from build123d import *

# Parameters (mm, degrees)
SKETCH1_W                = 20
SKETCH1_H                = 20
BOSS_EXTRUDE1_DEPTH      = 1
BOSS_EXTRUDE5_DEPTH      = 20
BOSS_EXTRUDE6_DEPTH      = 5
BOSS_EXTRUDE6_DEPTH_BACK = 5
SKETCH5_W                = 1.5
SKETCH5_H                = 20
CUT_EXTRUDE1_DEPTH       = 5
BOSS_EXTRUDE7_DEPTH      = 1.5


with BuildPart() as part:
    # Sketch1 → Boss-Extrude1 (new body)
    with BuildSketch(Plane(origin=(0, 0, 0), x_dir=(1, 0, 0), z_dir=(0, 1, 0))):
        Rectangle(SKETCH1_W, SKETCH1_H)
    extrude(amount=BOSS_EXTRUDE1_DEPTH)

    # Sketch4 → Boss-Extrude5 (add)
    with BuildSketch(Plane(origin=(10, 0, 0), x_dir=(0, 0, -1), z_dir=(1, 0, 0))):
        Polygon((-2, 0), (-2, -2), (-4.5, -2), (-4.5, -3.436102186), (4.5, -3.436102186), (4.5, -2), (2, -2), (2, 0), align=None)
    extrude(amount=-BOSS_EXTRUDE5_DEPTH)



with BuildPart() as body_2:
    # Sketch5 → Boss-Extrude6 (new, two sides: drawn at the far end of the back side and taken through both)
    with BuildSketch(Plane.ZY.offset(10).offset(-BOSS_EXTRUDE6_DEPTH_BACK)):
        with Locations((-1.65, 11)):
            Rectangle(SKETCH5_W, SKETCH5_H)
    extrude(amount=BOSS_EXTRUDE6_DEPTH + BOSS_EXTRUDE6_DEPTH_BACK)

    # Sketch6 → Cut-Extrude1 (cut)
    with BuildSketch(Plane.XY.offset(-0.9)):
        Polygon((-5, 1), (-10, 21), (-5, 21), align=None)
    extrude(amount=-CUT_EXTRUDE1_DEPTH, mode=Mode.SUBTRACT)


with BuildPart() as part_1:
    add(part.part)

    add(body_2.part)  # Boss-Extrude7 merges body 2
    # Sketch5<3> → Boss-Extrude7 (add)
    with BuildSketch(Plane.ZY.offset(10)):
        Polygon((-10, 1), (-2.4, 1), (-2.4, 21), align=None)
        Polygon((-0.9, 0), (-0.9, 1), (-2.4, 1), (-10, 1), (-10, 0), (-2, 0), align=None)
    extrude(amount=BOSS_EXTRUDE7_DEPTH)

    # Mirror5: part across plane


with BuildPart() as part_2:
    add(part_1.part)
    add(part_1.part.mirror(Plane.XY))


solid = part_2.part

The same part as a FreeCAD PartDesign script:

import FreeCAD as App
import Part
import Sketcher

V = App.Vector
Q = App.Units.Quantity


def add_polygon(sketch, points):
    """Adds a closed chain of lines whose ends are joined by coincident constraints."""
    first, n = sketch.GeometryCount, len(points)
    for a, b in zip(points, points[1:] + points[:1]):
        sketch.addGeometry(Part.LineSegment(App.Vector(*a, 0), App.Vector(*b, 0)), False)
    for i in range(n):
        sketch.addConstraint(Sketcher.Constraint("Coincident", first + i, 2, first + (i + 1) % n, 1))

doc = App.newDocument("Part")
body = doc.addObject("PartDesign::Body", "Body")

# Sketch on XZ plane
sketch1 = doc.addObject("Sketcher::SketchObject", "Sketch")
body.addObject(sketch1)
sketch1.AttachmentSupport = (doc.XZ_Plane, [""])
sketch1.MapMode = "FlatFace"
add_polygon(sketch1, [(-10, -10), (-10, 10), (10, 10), (10, -10)])  # lines 0-3
sketch1.addConstraint(Sketcher.Constraint("Vertical", 0))
sketch1.addConstraint(Sketcher.Constraint("Horizontal", 1))
sketch1.addConstraint(Sketcher.Constraint("Vertical", 2))
sketch1.addConstraint(Sketcher.Constraint("Horizontal", 3))
sketch1.addConstraint(Sketcher.Constraint("Symmetric", 0, 2, 2, 2, -1, 1))
sketch1.addConstraint(Sketcher.Constraint("Equal", 3, 0))
sketch1.addConstraint(Sketcher.Constraint("DistanceX", 1, 1, 1, 2, Q("20 mm")))
pad1 = doc.addObject("PartDesign::Pad", "Pad")
body.addObject(pad1)
pad1.Profile = sketch1
pad1.Length = 1
pad1.Reversed = True

# Sketch on YZ plane
sketch2 = doc.addObject("Sketcher::SketchObject", "Sketch001")
body.addObject(sketch2)
sketch2.AttachmentSupport = (doc.YZ_Plane, [""])
sketch2.MapMode = "FlatFace"
sketch2.AttachmentOffset = App.Placement(V(0, 0, 10), App.Rotation())
add_polygon(sketch2, [(0, 2), (-2, 2), (-2, 4.5), (-3.436102, 4.5), (-3.436102, -4.5), (-2, -4.5), (-2, -2), (0, -2)])  # lines 0-7
sketch2.addConstraint(Sketcher.Constraint("Horizontal", 0))
sketch2.addConstraint(Sketcher.Constraint("Vertical", 1))
sketch2.addConstraint(Sketcher.Constraint("Horizontal", 2))
sketch2.addConstraint(Sketcher.Constraint("Vertical", 3))
sketch2.addConstraint(Sketcher.Constraint("Horizontal", 4))
sketch2.addConstraint(Sketcher.Constraint("Vertical", 5))
sketch2.addConstraint(Sketcher.Constraint("Horizontal", 6))
sketch2.addConstraint(Sketcher.Constraint("Vertical", 7))
sketch2.addConstraint(Sketcher.Constraint("Symmetric", 6, 2, 7, 2, -1, 1))
sketch2.addConstraint(Sketcher.Constraint("Symmetric", 1, 2, 4, 2, -1))
sketch2.addConstraint(Sketcher.Constraint("DistanceX", 0, 2, 0, 1, Q("2 mm")))
sketch2.addConstraint(Sketcher.Constraint("DistanceY", 3, 2, 3, 1, Q("9 mm")))
sketch2.addConstraint(Sketcher.Constraint("DistanceY", 7, 1, 7, 2, Q("4 mm")))
sketch2.addConstraint(Sketcher.Constraint("DistanceX", 2, 2, 2, 1, Q("1.436102 mm")))
pad2 = doc.addObject("PartDesign::Pad", "Pad001")
body.addObject(pad2)
pad2.Profile = sketch2
pad2.Length = 20
pad2.Reversed = True
body2 = doc.addObject("PartDesign::Body", "Body001")

# Sketch on YZ plane
sketch3 = doc.addObject("Sketcher::SketchObject", "Sketch002")
body2.addObject(sketch3)
sketch3.AttachmentSupport = (doc.getObject("YZ_Plane001"), [""])
sketch3.MapMode = "FlatFace"
sketch3.AttachmentOffset = App.Placement(V(0, 0, -10), App.Rotation())
add_polygon(sketch3, [(21, -2.4), (1, -2.4), (1, -0.9), (21, -0.9)])  # lines 0-3
sketch3.addConstraint(Sketcher.Constraint("Horizontal", 0))
sketch3.addConstraint(Sketcher.Constraint("Vertical", 1))
sketch3.addConstraint(Sketcher.Constraint("Horizontal", 2))
sketch3.addConstraint(Sketcher.Constraint("Vertical", 3))
sketch3.addConstraint(Sketcher.Constraint("DistanceX", 0, 2, 0, 1, Q("20 mm")))
sketch3.addConstraint(Sketcher.Constraint("DistanceY", 1, 1, 1, 2, Q("1.5 mm")))
sketch3.addConstraint(Sketcher.Constraint("DistanceX", -1, 1, 0, 2, Q("1 mm")))
sketch3.addConstraint(Sketcher.Constraint("DistanceY", 0, 2, -1, 1, Q("2.4 mm")))
pad3 = doc.addObject("PartDesign::Pad", "Pad002")
body2.addObject(pad3)
pad3.Profile = sketch3
pad3.Type = "TwoLengths"
pad3.Length = 5
pad3.Length2 = 5
pad3.Reversed = True

# Sketch on XY plane
sketch4 = doc.addObject("Sketcher::SketchObject", "Sketch003")
body2.addObject(sketch4)
sketch4.AttachmentSupport = (doc.getObject("XY_Plane001"), [""])
sketch4.MapMode = "FlatFace"
sketch4.AttachmentOffset = App.Placement(V(0, 0, -0.9), App.Rotation())
add_polygon(sketch4, [(-10, 21), (-5, 1), (-5, 21)])  # lines 0-2
sketch4.addConstraint(Sketcher.Constraint("Vertical", 1))
sketch4.addConstraint(Sketcher.Constraint("Horizontal", 2))
sketch4.addConstraint(Sketcher.Constraint("DistanceX", 2, 2, 2, 1, Q("5 mm")))
sketch4.addConstraint(Sketcher.Constraint("DistanceY", 1, 1, 1, 2, Q("20 mm")))
sketch4.addConstraint(Sketcher.Constraint("DistanceX", 0, 2, -1, 1, Q("5 mm")))
sketch4.addConstraint(Sketcher.Constraint("DistanceY", -1, 1, 0, 2, Q("1 mm")))
pocket1 = doc.addObject("PartDesign::Pocket", "Pocket")
body2.addObject(pocket1)
pocket1.Profile = sketch4
pocket1.Length = 5
doc.recompute()

boolean = doc.addObject("PartDesign::Boolean", "Boolean")
body.addObject(boolean)
boolean.Type = "Fuse"
boolean.addObjects([body2])

# Sketch on YZ plane
sketch5 = doc.addObject("Sketcher::SketchObject", "Sketch004")
body.addObject(sketch5)
sketch5.AttachmentSupport = (doc.YZ_Plane, [""])
sketch5.MapMode = "FlatFace"
sketch5.AttachmentOffset = App.Placement(V(0, 0, -10), App.Rotation())
add_polygon(sketch5, [(1, -2.4), (21, -2.4), (1, -10), (0, -10), (0, -0.9), (1, -0.9)])  # lines 0-5
sketch5.addConstraint(Sketcher.Constraint("Horizontal", 0))
sketch5.addConstraint(Sketcher.Constraint("Horizontal", 2))
sketch5.addConstraint(Sketcher.Constraint("Vertical", 3))
sketch5.addConstraint(Sketcher.Constraint("Horizontal", 4))
sketch5.addConstraint(Sketcher.Constraint("Vertical", 5))
sketch5.addConstraint(Sketcher.Constraint("PointOnObject", 2, 2, -2))
sketch5.addConstraint(Sketcher.Constraint("Vertical", 1, 2, 4, 2))
sketch5.addConstraint(Sketcher.Constraint("DistanceX", 0, 1, 0, 2, Q("20 mm")))
sketch5.addConstraint(Sketcher.Constraint("DistanceX", 2, 2, 2, 1, Q("1 mm")))
sketch5.addConstraint(Sketcher.Constraint("DistanceY", 3, 1, 3, 2, Q("9.1 mm")))
sketch5.addConstraint(Sketcher.Constraint("DistanceY", 5, 2, 5, 1, Q("1.5 mm")))
sketch5.addConstraint(Sketcher.Constraint("DistanceY", 1, 2, -1, 1, Q("10 mm")))
pad4 = doc.addObject("PartDesign::Pad", "Pad003")
body.addObject(pad4)
pad4.Profile = sketch5
pad4.Length = 1.5
pad4.Reversed = True
body3 = doc.addObject("PartDesign::Body", "Body002")
doc.recompute()

body3.BaseFeature = body
doc.recompute()

mirroring = doc.addObject("Part::Mirroring", "Mirroring")
mirroring.Source = body
mirroring.Base = V(0, 0, 0)
mirroring.Normal = V(0, 0, 1)
body4 = doc.addObject("PartDesign::Body", "Body003")
body4.BaseFeature = mirroring
boolean2 = doc.addObject("PartDesign::Boolean", "Boolean001")
body3.addObject(boolean2)
boolean2.Type = "Fuse"
boolean2.addObjects([body4])
doc.recompute()
mirroring.Visibility = False

doc.recompute()
